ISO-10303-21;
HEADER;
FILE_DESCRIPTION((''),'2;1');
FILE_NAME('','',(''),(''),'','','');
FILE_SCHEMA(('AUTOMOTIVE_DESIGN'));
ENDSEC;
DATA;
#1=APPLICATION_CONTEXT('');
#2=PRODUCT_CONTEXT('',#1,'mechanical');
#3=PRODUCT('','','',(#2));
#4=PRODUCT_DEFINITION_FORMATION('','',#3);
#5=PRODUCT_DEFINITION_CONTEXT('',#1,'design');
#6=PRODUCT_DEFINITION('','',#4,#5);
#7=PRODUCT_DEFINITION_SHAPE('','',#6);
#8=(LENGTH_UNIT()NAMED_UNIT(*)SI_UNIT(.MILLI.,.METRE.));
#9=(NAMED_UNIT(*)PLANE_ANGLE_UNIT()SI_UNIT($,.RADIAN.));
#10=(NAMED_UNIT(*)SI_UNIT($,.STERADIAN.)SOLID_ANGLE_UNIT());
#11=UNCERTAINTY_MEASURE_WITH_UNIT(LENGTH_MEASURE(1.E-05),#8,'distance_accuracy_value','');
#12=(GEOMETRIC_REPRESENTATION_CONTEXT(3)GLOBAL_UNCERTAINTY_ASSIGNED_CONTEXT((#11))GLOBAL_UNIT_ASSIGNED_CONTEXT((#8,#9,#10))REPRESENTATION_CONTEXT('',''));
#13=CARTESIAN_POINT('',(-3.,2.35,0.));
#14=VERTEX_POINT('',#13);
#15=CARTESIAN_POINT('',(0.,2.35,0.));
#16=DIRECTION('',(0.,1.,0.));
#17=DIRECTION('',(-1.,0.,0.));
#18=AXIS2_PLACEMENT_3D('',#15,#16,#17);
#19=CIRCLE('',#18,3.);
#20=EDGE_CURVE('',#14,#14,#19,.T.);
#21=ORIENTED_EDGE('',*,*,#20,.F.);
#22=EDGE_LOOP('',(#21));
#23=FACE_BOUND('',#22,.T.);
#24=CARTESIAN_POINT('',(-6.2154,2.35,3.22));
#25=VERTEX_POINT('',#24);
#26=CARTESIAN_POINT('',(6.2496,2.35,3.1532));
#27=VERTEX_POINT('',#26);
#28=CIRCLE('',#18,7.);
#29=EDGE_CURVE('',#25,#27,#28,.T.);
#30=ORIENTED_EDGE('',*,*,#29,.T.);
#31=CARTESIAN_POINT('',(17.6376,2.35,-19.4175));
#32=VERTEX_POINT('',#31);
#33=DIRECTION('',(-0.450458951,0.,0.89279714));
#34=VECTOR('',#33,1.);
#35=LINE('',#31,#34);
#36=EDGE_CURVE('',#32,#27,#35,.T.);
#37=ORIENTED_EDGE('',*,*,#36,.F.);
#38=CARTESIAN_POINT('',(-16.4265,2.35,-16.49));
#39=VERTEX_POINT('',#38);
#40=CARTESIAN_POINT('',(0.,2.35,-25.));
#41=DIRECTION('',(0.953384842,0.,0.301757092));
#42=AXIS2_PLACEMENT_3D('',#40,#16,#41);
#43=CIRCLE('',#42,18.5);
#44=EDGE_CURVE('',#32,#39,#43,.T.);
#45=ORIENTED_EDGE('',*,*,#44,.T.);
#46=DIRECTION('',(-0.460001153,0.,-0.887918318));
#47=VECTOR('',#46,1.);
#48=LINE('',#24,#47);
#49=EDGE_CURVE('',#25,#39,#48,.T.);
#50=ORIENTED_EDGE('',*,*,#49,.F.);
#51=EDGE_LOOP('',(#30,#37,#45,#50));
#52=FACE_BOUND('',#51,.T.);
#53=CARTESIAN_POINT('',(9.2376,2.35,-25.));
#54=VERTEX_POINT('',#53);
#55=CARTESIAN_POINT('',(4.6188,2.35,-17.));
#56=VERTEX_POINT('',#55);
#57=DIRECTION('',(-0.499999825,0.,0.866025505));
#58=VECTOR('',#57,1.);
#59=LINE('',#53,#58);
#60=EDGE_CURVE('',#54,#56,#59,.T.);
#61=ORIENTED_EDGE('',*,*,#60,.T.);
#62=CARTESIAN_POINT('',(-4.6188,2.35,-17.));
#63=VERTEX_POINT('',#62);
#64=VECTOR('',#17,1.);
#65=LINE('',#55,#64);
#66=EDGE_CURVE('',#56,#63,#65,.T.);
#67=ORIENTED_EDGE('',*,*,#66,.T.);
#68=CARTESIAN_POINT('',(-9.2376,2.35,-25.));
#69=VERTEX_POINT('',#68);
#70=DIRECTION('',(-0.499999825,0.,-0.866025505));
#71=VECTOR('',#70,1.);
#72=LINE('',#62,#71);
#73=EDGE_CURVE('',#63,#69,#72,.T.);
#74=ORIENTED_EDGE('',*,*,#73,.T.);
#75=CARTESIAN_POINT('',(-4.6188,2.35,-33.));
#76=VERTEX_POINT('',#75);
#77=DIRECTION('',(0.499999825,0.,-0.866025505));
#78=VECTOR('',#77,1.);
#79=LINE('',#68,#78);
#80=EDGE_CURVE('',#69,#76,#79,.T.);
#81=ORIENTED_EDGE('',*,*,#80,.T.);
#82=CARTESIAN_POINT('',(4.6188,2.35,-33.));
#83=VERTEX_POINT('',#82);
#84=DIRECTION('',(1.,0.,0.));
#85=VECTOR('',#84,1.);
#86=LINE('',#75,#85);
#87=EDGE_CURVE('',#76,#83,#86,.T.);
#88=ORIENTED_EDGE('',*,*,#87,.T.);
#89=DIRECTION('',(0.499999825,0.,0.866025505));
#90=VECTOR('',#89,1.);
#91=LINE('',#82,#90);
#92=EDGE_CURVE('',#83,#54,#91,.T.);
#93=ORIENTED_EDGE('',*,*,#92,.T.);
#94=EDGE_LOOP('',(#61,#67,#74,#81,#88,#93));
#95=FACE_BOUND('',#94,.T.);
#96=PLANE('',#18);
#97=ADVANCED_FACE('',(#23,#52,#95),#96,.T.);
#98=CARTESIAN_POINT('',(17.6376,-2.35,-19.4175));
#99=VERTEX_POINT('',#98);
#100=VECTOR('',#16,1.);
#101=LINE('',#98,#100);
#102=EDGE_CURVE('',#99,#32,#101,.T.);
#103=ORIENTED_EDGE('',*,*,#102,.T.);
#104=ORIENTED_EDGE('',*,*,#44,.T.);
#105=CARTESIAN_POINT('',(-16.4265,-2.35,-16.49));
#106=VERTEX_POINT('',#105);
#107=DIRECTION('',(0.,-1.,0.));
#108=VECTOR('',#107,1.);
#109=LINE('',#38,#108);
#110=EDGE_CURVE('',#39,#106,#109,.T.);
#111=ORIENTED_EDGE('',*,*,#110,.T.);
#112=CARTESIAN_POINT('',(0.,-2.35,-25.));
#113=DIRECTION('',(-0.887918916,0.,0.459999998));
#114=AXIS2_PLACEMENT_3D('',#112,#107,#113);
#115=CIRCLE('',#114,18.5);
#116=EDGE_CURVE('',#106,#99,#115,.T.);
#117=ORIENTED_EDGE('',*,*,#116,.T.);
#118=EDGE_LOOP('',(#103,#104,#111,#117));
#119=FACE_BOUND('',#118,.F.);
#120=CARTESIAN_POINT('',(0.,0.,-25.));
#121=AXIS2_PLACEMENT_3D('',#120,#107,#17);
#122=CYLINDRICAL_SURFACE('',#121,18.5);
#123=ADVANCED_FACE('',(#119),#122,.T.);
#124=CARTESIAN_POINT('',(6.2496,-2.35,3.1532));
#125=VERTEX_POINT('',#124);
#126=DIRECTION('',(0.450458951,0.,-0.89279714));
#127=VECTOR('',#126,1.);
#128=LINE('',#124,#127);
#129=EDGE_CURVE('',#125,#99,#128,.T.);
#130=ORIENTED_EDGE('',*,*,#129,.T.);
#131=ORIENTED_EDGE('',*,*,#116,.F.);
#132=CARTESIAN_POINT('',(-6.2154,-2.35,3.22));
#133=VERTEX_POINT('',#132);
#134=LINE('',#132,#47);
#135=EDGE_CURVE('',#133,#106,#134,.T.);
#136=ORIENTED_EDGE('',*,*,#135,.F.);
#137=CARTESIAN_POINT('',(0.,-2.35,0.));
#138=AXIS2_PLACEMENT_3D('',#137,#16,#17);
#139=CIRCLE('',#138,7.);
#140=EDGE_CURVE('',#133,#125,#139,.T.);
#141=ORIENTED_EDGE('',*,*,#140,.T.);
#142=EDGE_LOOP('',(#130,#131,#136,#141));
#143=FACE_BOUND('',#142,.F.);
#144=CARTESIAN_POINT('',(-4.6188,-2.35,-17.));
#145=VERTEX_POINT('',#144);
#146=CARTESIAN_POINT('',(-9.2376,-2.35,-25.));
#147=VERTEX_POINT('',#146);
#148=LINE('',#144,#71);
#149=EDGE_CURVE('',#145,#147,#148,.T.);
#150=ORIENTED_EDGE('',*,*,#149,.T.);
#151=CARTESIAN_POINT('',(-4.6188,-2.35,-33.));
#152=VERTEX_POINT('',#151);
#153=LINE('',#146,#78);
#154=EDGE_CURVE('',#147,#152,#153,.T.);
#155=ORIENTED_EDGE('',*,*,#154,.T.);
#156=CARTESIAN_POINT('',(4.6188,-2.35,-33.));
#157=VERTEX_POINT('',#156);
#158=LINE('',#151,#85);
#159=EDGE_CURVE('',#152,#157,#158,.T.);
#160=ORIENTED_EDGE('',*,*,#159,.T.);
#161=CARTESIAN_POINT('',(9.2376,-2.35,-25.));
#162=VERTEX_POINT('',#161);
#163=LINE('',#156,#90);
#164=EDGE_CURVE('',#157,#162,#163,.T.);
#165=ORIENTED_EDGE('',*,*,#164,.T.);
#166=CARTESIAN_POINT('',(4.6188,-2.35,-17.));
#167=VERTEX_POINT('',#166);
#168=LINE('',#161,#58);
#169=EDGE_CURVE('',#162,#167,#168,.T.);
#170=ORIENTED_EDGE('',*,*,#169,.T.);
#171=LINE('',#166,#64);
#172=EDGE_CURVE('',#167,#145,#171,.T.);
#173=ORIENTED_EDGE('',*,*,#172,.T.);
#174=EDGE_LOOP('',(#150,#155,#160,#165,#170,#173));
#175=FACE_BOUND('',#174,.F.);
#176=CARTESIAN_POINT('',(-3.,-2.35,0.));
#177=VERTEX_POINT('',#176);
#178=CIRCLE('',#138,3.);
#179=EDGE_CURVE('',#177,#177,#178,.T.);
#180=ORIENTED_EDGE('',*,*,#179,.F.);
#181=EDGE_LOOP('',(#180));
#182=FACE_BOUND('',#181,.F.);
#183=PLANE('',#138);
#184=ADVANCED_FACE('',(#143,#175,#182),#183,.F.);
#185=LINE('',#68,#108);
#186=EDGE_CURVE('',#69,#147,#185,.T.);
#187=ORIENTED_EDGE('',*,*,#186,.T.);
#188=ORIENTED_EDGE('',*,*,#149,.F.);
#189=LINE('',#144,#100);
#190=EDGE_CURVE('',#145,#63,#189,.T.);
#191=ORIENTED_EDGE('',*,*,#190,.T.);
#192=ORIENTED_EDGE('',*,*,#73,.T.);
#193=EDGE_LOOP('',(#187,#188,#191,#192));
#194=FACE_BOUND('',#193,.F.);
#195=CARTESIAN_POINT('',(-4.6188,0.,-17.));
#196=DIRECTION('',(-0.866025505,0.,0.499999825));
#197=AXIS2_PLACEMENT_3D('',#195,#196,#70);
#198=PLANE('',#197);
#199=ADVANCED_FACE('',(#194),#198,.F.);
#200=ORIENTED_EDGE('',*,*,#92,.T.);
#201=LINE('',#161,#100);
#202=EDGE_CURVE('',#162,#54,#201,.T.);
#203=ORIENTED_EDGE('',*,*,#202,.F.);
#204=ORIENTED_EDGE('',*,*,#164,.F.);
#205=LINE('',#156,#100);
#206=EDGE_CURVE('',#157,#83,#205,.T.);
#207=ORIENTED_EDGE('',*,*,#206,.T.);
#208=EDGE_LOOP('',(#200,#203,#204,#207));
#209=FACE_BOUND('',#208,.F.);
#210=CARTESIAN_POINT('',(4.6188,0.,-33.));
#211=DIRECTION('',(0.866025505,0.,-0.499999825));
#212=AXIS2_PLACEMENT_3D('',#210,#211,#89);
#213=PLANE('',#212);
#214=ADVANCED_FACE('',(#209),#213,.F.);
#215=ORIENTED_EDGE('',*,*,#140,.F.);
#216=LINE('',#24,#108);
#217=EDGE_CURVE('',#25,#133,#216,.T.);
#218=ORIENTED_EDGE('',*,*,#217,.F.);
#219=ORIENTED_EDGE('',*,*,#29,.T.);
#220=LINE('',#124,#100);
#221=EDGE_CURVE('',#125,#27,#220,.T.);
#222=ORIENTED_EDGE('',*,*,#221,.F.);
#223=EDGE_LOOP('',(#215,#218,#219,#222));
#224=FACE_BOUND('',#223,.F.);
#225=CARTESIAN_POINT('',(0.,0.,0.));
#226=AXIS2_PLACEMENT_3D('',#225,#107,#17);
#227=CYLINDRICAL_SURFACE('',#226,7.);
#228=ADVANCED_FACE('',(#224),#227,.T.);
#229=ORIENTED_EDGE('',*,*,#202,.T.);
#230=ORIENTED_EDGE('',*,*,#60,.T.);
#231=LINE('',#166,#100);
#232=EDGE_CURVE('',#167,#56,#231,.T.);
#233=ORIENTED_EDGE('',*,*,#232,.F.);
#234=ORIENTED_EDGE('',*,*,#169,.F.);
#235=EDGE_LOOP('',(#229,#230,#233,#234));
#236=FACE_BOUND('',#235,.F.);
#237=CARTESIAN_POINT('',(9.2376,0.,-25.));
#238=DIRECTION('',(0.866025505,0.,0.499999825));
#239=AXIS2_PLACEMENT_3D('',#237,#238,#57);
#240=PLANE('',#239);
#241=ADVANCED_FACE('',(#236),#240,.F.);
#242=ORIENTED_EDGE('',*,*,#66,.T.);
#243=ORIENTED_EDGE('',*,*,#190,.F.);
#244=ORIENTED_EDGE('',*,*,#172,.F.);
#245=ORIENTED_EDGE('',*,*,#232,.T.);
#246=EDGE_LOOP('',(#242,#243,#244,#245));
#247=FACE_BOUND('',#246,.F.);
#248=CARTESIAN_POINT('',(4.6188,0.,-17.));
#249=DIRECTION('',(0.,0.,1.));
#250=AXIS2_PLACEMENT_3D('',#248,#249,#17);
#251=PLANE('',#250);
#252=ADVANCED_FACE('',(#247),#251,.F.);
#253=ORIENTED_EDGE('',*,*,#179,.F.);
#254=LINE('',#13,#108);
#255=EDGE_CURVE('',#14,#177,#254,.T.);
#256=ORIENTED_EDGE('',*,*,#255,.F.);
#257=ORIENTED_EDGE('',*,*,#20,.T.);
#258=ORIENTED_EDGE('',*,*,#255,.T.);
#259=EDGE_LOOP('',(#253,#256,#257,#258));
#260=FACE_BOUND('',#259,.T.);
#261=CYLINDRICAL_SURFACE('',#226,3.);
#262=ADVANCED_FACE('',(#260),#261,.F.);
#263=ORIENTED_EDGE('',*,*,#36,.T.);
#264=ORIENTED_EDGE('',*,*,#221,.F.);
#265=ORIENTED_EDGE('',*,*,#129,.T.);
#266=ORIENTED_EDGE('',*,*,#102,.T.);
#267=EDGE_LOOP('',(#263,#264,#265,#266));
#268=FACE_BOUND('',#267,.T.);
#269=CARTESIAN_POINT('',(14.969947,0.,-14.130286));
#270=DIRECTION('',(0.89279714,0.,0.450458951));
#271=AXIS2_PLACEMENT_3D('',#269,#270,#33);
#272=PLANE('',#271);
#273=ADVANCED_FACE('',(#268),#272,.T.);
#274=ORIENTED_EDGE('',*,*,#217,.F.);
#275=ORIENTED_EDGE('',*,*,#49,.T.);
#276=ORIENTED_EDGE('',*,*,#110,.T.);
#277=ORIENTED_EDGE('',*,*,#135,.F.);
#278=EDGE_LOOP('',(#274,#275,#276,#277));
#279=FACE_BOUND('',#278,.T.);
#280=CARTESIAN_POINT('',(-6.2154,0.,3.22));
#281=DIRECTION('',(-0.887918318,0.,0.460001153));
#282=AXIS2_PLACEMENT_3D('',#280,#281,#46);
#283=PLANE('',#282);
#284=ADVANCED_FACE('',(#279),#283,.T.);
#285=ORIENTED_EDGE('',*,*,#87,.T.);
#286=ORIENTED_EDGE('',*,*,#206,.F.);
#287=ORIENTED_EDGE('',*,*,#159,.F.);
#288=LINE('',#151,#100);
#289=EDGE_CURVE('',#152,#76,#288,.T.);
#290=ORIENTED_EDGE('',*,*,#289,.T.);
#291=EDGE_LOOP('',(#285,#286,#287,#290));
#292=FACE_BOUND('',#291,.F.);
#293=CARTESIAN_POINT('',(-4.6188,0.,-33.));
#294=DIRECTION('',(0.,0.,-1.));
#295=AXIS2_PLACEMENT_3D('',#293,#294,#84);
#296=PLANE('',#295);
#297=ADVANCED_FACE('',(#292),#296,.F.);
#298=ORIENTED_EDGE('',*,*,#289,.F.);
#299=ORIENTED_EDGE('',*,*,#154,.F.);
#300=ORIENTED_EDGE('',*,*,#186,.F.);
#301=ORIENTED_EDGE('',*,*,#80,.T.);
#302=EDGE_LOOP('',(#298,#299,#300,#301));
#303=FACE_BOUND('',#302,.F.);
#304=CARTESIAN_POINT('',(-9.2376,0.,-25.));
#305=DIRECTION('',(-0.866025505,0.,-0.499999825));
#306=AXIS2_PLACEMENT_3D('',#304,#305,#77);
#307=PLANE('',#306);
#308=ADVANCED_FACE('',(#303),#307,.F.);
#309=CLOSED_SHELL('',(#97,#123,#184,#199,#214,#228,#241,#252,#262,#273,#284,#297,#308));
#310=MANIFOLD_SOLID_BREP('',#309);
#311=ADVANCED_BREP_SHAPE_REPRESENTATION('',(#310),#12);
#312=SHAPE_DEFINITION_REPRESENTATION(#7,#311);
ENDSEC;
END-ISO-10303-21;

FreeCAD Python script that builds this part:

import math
import FreeCAD as App
import Part
import Sketcher
Q = App.Units.Quantity

doc = App.newDocument("Part")
body = doc.addObject("PartDesign::Body", "Body")

sketch1 = body.newObject("Sketcher::SketchObject", "Sketch")
sketch1.AttachmentSupport = (doc.getObject("XZ_Plane"), [""])
sketch1.MapMode = "FlatFace"
sketch1.addGeometry(Part.ArcOfCircle(Part.Circle(App.Vector(0, 0, 0), App.Vector(0, 0, 1), 7), math.radians(26.772967), math.radians(152.61277)), False)
sketch1.addGeometry(Part.LineSegment(App.Vector(6.2496, 3.1532, 0), App.Vector(17.6376, -19.4175, 0)), False)
sketch1.addGeometry(Part.ArcOfCircle(Part.Circle(App.Vector(0, -25, 0), App.Vector(0, 0, 1), 18.5), math.radians(152.612893), math.radians(377.563169)), False)
sketch1.addGeometry(Part.LineSegment(App.Vector(-16.4265, -16.49, 0), App.Vector(-6.2154, 3.22, 0)), False)
sketch1.addGeometry(Part.Circle(App.Vector(0, 0, 0), App.Vector(0, 0, 1), 3), False)
sketch1.addGeometry(Part.LineSegment(App.Vector(-9.2376, -25, 0), App.Vector(-4.6188, -33, 0)), False)
sketch1.addGeometry(Part.LineSegment(App.Vector(-4.6188, -33, 0), App.Vector(4.6188, -33, 0)), False)
sketch1.addGeometry(Part.LineSegment(App.Vector(4.6188, -33, 0), App.Vector(9.2376, -25, 0)), False)
sketch1.addGeometry(Part.LineSegment(App.Vector(9.2376, -25, 0), App.Vector(4.6188, -17, 0)), False)
sketch1.addGeometry(Part.LineSegment(App.Vector(4.6188, -17, 0), App.Vector(-4.6188, -17, 0)), False)
sketch1.addGeometry(Part.LineSegment(App.Vector(-4.6188, -17, 0), App.Vector(-9.2376, -25, 0)), False)
sketch1.addConstraint(Sketcher.Constraint("Tangent", 0, 1, 1, 1))
sketch1.addConstraint(Sketcher.Constraint("Coincident", 1, 2, 2, 2))
sketch1.addConstraint(Sketcher.Constraint("Tangent", 2, 1, 3, 1))
sketch1.addConstraint(Sketcher.Constraint("Tangent", 3, 2, 0, 2))
sketch1.addConstraint(Sketcher.Constraint("Coincident", 5, 2, 6, 1))
sketch1.addConstraint(Sketcher.Constraint("Coincident", 6, 2, 7, 1))
sketch1.addConstraint(Sketcher.Constraint("Coincident", 7, 2, 8, 1))
sketch1.addConstraint(Sketcher.Constraint("Coincident", 8, 2, 9, 1))
sketch1.addConstraint(Sketcher.Constraint("Coincident", 9, 2, 10, 1))
sketch1.addConstraint(Sketcher.Constraint("Coincident", 10, 2, 5, 1))
sketch1.addConstraint(Sketcher.Constraint("Horizontal", 6))
sketch1.addConstraint(Sketcher.Constraint("Horizontal", 9))
sketch1.addConstraint(Sketcher.Constraint("Coincident", 0, 3, -1, 1))
sketch1.addConstraint(Sketcher.Constraint("Coincident", 4, 3, -1, 1))
sketch1.addConstraint(Sketcher.Constraint("Symmetric", 7, 2, 10, 2, -2))
sketch1.addConstraint(Sketcher.Constraint("PointOnObject", 2, 3, -2))
sketch1.addConstraint(Sketcher.Constraint("Parallel", 5, 8))
sketch1.addConstraint(Sketcher.Constraint("Parallel", 7, 10))
sketch1.addConstraint(Sketcher.Constraint("Horizontal", 2, 3, 7, 2))
sketch1.addConstraint(Sketcher.Constraint("Vertical", 6, 2, 8, 2))
sketch1.addConstraint(Sketcher.Constraint("Vertical", 5, 2, 9, 2))
sketch1.addConstraint(Sketcher.Constraint("Diameter", 4, 6.0))
sketch1.addConstraint(Sketcher.Constraint("Radius", 0, 7.0))
sketch1.addConstraint(Sketcher.Constraint("Radius", 2, 18.5))
sketch1.addConstraint(Sketcher.Constraint("DistanceY", 2, 3, -1, 1, 25.0))
sketch1.addConstraint(Sketcher.Constraint("DistanceY", 6, 2, 8, 2, 16.0))
sketch1.addConstraint(Sketcher.Constraint("Angle", 5, Q("-60 deg")))
sketch1.addConstraint(Sketcher.Constraint("DistanceX", 7, 2, 1, 2, 8.4))
sketch1.addConstraint(Sketcher.Constraint("Distance", 1, 25.281))
pad1 = body.newObject("PartDesign::Pad", "Pad")
pad1.Profile = sketch1
pad1.Length = 4.7
pad1.Midplane = True

doc.recompute()
